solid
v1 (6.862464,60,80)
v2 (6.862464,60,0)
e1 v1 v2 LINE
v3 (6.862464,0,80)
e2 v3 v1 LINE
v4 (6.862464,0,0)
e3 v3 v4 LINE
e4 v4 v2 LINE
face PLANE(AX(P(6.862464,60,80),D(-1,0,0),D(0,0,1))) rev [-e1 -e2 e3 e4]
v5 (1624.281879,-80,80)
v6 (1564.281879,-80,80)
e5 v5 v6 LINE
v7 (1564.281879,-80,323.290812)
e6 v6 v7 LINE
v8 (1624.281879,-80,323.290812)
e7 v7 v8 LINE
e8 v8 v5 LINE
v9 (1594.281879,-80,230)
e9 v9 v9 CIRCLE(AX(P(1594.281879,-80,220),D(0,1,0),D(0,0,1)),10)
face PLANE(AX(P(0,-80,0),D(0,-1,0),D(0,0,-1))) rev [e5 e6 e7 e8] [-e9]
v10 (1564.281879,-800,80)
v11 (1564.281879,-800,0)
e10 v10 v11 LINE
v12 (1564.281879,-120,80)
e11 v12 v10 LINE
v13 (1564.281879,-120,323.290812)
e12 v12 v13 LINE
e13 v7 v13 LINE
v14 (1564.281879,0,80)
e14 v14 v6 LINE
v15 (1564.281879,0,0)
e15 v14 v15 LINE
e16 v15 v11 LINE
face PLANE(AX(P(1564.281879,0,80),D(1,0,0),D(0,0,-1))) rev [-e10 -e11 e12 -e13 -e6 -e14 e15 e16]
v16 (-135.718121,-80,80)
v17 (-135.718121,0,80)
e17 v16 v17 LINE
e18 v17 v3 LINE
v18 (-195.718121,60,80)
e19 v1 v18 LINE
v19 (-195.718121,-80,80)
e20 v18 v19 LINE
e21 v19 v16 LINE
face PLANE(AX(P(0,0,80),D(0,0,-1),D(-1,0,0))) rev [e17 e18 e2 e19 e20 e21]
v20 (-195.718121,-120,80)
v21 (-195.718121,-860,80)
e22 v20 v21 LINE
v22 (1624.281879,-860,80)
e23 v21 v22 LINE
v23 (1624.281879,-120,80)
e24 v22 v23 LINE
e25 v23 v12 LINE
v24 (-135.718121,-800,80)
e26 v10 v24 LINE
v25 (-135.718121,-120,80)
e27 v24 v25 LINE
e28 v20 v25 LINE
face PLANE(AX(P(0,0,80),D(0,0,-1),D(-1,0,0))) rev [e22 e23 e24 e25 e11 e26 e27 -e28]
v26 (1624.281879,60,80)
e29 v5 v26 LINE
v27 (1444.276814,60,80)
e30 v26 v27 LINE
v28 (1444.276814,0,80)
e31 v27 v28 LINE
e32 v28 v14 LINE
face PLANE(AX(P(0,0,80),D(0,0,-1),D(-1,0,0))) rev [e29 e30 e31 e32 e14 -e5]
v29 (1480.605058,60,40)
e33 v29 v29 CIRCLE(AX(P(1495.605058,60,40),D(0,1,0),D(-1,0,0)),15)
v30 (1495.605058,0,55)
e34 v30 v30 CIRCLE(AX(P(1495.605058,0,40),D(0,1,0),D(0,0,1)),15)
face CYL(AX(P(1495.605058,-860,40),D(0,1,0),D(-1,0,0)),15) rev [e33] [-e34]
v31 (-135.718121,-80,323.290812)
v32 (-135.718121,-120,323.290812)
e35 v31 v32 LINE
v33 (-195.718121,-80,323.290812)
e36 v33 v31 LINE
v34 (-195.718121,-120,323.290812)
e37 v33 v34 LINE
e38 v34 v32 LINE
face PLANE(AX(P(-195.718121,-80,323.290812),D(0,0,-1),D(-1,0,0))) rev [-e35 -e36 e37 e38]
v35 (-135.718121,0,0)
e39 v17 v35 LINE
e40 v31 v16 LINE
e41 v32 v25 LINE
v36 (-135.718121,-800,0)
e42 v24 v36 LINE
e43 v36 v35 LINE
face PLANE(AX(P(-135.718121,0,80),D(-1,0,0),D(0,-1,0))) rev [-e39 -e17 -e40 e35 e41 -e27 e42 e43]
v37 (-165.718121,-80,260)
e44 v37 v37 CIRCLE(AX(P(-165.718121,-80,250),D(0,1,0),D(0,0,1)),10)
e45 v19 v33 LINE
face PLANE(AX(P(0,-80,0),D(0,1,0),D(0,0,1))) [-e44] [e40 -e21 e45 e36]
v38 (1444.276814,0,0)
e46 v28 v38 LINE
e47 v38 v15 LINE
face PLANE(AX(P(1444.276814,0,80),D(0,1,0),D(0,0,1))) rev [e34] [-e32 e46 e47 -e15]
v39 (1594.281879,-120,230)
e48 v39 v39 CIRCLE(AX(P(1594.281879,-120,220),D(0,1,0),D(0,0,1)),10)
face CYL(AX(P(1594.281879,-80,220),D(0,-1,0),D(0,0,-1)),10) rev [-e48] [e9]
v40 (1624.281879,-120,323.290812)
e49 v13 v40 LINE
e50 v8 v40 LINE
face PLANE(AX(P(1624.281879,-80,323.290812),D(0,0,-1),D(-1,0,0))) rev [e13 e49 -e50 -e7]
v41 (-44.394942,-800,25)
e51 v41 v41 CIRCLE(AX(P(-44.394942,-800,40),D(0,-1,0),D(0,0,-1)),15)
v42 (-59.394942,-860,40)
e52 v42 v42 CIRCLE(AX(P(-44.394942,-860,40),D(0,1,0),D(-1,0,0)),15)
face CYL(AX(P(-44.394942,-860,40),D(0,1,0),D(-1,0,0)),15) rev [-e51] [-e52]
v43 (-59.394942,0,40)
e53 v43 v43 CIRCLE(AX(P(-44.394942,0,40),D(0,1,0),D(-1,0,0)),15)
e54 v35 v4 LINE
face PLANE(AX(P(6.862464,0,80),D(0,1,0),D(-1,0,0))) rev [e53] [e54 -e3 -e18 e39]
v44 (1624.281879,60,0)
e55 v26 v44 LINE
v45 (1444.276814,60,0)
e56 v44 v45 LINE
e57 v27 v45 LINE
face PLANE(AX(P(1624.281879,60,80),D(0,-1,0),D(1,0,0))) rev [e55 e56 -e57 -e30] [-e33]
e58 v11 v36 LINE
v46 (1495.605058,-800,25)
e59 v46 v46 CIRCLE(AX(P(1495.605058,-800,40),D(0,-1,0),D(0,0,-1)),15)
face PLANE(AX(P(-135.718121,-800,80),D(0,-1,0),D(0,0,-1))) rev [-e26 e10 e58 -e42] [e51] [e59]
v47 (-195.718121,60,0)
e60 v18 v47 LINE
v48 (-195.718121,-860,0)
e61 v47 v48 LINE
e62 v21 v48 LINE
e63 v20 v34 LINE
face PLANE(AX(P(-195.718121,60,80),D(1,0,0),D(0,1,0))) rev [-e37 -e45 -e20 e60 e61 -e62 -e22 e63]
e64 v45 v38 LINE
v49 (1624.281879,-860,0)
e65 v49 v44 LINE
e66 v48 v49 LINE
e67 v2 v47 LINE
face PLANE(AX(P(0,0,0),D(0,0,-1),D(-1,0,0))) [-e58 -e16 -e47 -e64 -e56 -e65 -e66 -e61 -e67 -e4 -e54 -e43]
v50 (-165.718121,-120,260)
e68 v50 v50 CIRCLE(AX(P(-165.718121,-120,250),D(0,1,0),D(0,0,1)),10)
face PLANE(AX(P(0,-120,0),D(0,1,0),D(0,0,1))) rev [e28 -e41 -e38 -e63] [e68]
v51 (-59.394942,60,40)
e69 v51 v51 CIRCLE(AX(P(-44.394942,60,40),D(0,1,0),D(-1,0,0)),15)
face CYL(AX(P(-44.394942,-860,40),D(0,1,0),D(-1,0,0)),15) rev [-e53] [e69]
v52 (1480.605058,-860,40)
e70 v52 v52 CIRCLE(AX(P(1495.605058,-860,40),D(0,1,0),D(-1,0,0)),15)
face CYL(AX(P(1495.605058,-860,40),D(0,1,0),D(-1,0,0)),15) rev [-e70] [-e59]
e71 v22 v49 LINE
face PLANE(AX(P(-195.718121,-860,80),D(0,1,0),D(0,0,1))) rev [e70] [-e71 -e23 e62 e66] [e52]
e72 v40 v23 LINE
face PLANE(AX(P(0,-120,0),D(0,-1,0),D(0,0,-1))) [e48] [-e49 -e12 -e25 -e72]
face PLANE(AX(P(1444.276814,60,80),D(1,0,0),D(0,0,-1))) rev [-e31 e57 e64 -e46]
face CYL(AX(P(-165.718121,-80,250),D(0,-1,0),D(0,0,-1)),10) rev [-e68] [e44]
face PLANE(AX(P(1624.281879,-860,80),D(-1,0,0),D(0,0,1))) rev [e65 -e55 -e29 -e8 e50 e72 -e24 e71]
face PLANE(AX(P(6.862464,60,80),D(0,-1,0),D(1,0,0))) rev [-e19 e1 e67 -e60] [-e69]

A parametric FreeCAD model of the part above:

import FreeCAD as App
import Part
import Sketcher
from FreeCAD import Vector


def add_polygon(sketch, points):
    """Adds a closed chain of lines whose ends are joined by coincident constraints."""
    first, n = sketch.GeometryCount, len(points)
    for a, b in zip(points, points[1:] + points[:1]):
        sketch.addGeometry(Part.LineSegment(App.Vector(*a, 0), App.Vector(*b, 0)), False)
    for i in range(n):
        sketch.addConstraint(Sketcher.Constraint("Coincident", first + i, 2, first + (i + 1) % n, 1))

doc = App.newDocument("Part")
body = doc.addObject("PartDesign::Body", "Body")

sketch1 = body.newObject("Sketcher::SketchObject", "Sketch")
sketch1.AttachmentSupport = (doc.getObject("XY_Plane"), [""])
sketch1.MapMode = "FlatFace"
add_polygon(sketch1, [(-136, 0), (7, 0), (7, 60), (-196, 60), (-196, -860), (1624, -860), (1624, 60), (1444, 60), (1444, 0), (1564, 0), (1564, -800), (-136, -800)])
sketch1.addConstraint([
    Sketcher.Constraint("Horizontal", 0),
    Sketcher.Constraint("Vertical", 1),
    Sketcher.Constraint("Horizontal", 2),
    Sketcher.Constraint("Vertical", 3),
    Sketcher.Constraint("Horizontal", 4),
    Sketcher.Constraint("Vertical", 5),
    Sketcher.Constraint("Horizontal", 6),
    Sketcher.Constraint("Vertical", 7),
    Sketcher.Constraint("Horizontal", 8),
    Sketcher.Constraint("Vertical", 9),
    Sketcher.Constraint("Horizontal", 10),
    Sketcher.Constraint("Vertical", 11),
    Sketcher.Constraint("PointOnObject", 0, 2, -1),
    Sketcher.Constraint("PointOnObject", 7, 2, -1),
    Sketcher.Constraint("Horizontal", 2, 2, 5, 2),
    Sketcher.Constraint("DistanceX", 4, 1, 4, 2, 1820.0),
    Sketcher.Constraint("DistanceX", 10, 2, 10, 1, 1700.0),
    Sketcher.Constraint("DistanceY", 1, 1, 1, 2, 60.0),
    Sketcher.Constraint("DistanceY", 3, 2, 3, 1, 920.0),
    Sketcher.Constraint("DistanceY", 9, 2, 9, 1, 800.0),
    Sketcher.Constraint("DistanceX", 8, 2, 5, 2, 60.0),
    Sketcher.Constraint("DistanceX", 0, 1, 0, 2, 142.580585),
    Sketcher.Constraint("DistanceX", 6, 2, 6, 1, 180.005064),
    Sketcher.Constraint("DistanceX", 2, 2, -1, 1, 195.718121),
])
pad1 = body.newObject("PartDesign::Pad", "Pad")
pad1.Profile = sketch1
pad1.Length = 80

sketch2 = body.newObject("Sketcher::SketchObject", "Sketch001")
sketch2.AttachmentSupport = (doc.getObject("XZ_Plane"), [""])
sketch2.MapMode = "FlatFace"
sketch2.AttachmentOffset = App.Placement(Vector(0, 0, -60), App.Rotation())
sketch2.addGeometry([
    Part.Circle(Vector(-44, 40, 0), Vector(0, 0, 1), 15),
    Part.Circle(Vector(1496, 40, 0), Vector(0, 0, 1), 15),
], False)
sketch2.addConstraint([
    Sketcher.Constraint("Equal", 0, 1),
    Sketcher.Constraint("Horizontal", 0, 3, 1, 3),
    Sketcher.Constraint("Diameter", 0, 30.0),
    Sketcher.Constraint("DistanceY", -1, 1, 0, 3, 40.0),
    Sketcher.Constraint("DistanceX", 0, 3, 1, 3, 1540.0),
    Sketcher.Constraint("DistanceX", 0, 3, -1, 1, 44.394942),
])
pocket1 = body.newObject("PartDesign::Pocket", "Pocket")
pocket1.Profile = sketch2
pocket1.Type = "ThroughAll"
pocket1.Reversed = True

sketch3 = body.newObject("Sketcher::SketchObject", "Sketch002")
sketch3.AttachmentSupport = (doc.getObject("XZ_Plane"), [""])
sketch3.MapMode = "FlatFace"
sketch3.AttachmentOffset = App.Placement(Vector(0, 0, 100), App.Rotation())
add_polygon(sketch3, [(-196, 40), (-196, 323), (-136, 323), (-136, 40)])
sketch3.addGeometry(Part.Circle(Vector(-166, 250, 0), Vector(0, 0, 1), 10), False)
add_polygon(sketch3, [(1564, 40), (1564, 323), (1624, 323), (1624, 40)])
sketch3.addGeometry(Part.Circle(Vector(1594, 220, 0), Vector(0, 0, 1), 10), False)
sketch3.addConstraint([
    Sketcher.Constraint("Vertical", 0),
    Sketcher.Constraint("Horizontal", 1),
    Sketcher.Constraint("Vertical", 2),
    Sketcher.Constraint("Horizontal", 3),
    Sketcher.Constraint("Vertical", 5),
    Sketcher.Constraint("Horizontal", 6),
    Sketcher.Constraint("Vertical", 7),
    Sketcher.Constraint("Horizontal", 8),
    Sketcher.Constraint("Equal", 4, 9),
    Sketcher.Constraint("Horizontal", 1, 2, 5, 2),
    Sketcher.Constraint("Horizontal", 3, 2, 7, 2),
    Sketcher.Constraint("Equal", 3, 6),
    Sketcher.Constraint("Diameter", 4, 20.0),
    Sketcher.Constraint("DistanceX", 1, 1, 1, 2, 60.0),
    Sketcher.Constraint("DistanceY", -1, 1, 4, 3, 250.0),
    Sketcher.Constraint("DistanceY", -1, 1, 9, 3, 220.0),
    Sketcher.Constraint("DistanceY", -1, 1, 2, 2, 40.0),
    Sketcher.Constraint("DistanceX", 4, 3, 9, 3, 1760.0),
    Sketcher.Constraint("DistanceX", 0, 2, 4, 3, 30.0),
    Sketcher.Constraint("DistanceX", 5, 2, 9, 3, 30.0),
    Sketcher.Constraint("DistanceY", 0, 1, 0, 2, 283.290812),
    Sketcher.Constraint("DistanceX", 4, 3, -1, 1, 165.718121),
])
pad2 = body.newObject("PartDesign::Pad", "Pad001")
pad2.Profile = sketch3
pad2.Length = 40
pad2.Midplane = True

doc.recompute()
